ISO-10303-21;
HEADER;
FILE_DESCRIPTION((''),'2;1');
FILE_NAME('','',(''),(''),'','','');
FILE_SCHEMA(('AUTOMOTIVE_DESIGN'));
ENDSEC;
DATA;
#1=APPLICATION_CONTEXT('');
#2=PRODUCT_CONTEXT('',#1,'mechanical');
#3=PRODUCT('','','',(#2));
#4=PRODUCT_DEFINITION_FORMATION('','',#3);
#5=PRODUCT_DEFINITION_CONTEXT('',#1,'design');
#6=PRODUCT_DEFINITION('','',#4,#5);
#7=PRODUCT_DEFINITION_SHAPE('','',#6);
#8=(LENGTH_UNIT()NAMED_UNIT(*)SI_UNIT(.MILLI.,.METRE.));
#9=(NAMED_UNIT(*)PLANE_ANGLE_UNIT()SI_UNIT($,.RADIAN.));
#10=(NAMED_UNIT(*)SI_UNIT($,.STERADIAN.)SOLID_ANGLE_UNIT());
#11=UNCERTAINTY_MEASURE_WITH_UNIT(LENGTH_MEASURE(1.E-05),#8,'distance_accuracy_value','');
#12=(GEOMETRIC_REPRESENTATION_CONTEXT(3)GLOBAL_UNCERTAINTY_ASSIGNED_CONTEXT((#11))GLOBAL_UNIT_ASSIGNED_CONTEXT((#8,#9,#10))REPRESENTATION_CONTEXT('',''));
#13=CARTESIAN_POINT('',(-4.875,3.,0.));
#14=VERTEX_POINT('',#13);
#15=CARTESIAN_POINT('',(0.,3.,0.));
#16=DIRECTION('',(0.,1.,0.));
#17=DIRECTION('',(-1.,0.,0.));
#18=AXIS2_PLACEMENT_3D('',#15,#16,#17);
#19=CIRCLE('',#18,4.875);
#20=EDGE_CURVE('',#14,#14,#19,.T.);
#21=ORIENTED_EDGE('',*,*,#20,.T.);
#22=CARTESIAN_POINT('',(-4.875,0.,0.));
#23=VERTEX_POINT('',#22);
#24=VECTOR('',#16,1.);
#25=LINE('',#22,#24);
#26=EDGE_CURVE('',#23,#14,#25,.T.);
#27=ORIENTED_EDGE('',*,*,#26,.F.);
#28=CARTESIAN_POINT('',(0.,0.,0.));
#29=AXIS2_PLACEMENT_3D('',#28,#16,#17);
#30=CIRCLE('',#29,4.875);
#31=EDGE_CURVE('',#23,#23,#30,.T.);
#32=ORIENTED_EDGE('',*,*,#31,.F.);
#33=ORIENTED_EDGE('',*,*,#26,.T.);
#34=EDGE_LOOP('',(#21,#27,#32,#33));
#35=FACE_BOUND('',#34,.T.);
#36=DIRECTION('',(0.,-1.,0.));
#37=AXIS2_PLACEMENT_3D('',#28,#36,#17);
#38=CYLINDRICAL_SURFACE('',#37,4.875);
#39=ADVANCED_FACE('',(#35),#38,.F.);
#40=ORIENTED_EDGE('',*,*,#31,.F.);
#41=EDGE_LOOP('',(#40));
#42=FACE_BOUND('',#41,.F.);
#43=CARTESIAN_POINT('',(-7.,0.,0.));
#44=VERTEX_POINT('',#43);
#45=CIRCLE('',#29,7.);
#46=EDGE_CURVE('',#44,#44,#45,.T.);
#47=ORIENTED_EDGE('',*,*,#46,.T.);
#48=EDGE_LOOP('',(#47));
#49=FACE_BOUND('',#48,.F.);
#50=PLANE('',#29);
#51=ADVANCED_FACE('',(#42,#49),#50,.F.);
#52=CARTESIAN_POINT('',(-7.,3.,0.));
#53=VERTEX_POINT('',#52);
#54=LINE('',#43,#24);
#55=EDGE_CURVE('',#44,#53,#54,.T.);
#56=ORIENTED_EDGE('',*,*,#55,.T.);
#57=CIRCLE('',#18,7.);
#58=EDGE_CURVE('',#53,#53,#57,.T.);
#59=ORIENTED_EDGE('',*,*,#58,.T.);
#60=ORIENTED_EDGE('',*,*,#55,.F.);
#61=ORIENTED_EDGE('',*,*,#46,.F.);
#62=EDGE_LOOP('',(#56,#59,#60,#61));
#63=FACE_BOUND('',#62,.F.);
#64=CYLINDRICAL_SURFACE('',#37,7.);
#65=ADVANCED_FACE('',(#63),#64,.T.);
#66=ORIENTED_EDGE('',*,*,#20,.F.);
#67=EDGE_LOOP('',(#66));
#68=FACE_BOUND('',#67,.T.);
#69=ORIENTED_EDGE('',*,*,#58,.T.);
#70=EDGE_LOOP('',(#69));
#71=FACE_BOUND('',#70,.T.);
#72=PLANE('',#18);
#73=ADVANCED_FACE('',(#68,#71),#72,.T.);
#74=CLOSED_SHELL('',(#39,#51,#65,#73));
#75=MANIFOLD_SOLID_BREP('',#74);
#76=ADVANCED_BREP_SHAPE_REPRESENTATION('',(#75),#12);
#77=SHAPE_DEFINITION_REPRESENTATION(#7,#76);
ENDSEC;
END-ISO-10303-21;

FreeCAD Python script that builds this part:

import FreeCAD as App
import Part
import Sketcher
from FreeCAD import Vector

doc = App.newDocument("Part")
body = doc.addObject("PartDesign::Body", "Body")

# Sketch on XZ plane
sketch1 = doc.addObject("Sketcher::SketchObject", "Sketch")
body.addObject(sketch1)
sketch1.AttachmentSupport = (doc.XZ_Plane, [""])
sketch1.MapMode = "FlatFace"
sketch1.addGeometry([
    Part.Circle(Vector(0, 0, 0), Vector(0, 0, 1), 7),
    Part.Circle(Vector(0, 0, 0), Vector(0, 0, 1), 4.875),
], False)
sketch1.addConstraint([
    Sketcher.Constraint("Coincident", 0, 3, -1, 1),
    Sketcher.Constraint("Coincident", 1, 3, -1, 1),
    Sketcher.Constraint("Diameter", 0, 14.0),
    Sketcher.Constraint("Diameter", 1, 9.75),
])
pad1 = doc.addObject("PartDesign::Pad", "Pad")
body.addObject(pad1)
pad1.Profile = sketch1
pad1.Length = 3
pad1.Reversed = True

doc.recompute()
